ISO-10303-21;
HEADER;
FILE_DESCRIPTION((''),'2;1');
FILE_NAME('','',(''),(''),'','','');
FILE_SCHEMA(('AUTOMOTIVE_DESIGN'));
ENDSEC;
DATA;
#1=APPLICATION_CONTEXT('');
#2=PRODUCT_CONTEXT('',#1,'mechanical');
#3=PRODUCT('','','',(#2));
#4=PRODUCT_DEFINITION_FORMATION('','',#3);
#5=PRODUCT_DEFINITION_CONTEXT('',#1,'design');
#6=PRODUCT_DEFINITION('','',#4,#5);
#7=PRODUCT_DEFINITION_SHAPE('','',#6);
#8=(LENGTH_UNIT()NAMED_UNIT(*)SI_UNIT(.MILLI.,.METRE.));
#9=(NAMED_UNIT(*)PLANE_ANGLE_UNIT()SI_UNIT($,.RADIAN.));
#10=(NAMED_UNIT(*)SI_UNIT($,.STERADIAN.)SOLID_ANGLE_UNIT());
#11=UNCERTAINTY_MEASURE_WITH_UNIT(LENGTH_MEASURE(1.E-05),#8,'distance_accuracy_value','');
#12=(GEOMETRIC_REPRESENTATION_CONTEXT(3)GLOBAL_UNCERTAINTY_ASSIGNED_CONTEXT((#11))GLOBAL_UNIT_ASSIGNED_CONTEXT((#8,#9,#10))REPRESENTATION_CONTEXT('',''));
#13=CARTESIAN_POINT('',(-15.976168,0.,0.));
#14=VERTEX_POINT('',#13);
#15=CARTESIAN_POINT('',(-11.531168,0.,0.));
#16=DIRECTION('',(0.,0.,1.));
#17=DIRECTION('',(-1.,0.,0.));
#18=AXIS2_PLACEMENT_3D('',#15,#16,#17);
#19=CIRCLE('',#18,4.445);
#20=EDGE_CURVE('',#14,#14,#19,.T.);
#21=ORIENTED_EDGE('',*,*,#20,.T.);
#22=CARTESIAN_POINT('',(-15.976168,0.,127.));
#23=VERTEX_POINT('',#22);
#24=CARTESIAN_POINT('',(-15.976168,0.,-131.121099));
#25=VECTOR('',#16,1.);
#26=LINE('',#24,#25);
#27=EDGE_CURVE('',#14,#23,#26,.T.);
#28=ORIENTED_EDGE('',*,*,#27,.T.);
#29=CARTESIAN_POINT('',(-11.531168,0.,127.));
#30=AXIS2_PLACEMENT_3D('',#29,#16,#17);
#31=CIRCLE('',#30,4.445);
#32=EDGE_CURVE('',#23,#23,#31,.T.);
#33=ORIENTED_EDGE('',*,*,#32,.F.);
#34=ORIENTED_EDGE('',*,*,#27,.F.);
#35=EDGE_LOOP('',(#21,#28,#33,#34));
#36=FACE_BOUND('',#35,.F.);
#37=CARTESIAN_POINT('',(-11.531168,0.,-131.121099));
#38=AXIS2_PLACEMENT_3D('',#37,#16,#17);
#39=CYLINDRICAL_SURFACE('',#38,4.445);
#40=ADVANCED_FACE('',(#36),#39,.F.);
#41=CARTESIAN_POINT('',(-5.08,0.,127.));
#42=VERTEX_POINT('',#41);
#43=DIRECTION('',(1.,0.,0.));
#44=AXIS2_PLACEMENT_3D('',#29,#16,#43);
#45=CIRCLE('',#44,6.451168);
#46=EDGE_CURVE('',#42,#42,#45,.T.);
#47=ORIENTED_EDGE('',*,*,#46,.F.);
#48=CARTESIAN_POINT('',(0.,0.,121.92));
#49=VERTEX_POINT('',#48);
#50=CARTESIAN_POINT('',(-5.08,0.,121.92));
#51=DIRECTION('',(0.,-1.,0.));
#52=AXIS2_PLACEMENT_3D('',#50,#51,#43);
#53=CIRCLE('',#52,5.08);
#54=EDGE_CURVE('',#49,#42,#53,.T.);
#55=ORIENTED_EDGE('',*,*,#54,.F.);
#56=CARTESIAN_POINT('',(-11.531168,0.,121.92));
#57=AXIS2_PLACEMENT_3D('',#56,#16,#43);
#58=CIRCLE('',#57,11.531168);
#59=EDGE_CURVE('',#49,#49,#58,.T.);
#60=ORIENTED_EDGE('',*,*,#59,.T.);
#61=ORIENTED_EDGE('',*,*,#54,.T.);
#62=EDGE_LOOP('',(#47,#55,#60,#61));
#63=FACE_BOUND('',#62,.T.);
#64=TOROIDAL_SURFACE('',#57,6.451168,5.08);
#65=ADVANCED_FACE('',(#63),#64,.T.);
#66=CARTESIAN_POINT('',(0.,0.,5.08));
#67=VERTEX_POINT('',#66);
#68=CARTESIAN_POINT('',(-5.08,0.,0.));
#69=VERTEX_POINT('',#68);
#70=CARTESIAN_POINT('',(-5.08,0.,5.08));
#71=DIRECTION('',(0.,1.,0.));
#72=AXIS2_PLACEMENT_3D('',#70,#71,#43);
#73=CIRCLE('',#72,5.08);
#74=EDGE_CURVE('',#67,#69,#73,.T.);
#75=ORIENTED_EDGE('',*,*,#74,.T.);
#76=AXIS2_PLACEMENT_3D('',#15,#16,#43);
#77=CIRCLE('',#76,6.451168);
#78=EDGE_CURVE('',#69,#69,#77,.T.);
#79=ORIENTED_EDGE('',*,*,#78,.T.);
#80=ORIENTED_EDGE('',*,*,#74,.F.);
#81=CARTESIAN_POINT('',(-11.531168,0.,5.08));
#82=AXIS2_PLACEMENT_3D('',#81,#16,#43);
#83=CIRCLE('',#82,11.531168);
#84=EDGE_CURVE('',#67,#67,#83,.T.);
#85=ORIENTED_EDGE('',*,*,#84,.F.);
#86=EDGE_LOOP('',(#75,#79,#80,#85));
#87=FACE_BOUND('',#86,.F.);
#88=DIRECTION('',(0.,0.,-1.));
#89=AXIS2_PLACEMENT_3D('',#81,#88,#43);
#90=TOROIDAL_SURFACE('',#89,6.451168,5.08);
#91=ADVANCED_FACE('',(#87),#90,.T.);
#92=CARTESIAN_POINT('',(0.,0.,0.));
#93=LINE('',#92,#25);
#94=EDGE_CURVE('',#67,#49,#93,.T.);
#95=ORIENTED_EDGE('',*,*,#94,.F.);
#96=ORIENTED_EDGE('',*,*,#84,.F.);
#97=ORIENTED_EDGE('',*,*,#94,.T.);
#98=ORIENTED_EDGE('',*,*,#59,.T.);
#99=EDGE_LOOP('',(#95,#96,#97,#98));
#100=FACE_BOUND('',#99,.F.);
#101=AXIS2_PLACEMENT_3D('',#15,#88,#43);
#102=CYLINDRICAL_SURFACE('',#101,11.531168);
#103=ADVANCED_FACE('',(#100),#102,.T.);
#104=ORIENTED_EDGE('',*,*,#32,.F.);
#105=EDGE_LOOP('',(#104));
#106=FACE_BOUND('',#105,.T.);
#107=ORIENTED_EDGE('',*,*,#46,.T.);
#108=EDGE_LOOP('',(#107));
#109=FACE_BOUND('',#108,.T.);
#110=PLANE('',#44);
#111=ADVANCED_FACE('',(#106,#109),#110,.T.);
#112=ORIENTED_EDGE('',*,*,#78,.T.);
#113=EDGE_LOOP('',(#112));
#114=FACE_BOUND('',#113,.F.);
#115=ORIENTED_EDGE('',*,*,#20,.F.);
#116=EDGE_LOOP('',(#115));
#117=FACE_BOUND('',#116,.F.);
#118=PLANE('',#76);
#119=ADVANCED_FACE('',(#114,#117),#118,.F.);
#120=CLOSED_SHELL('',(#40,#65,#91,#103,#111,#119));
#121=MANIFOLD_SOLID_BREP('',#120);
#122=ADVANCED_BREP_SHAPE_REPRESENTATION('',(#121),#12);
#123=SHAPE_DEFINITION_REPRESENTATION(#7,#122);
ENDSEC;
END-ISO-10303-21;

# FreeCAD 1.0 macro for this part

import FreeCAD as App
import Part
import Sketcher
Q = App.Units.Quantity


def edges_at(feature, points):
    """Names of the edges that pass closest to the given points."""
    edges = feature.Shape.Edges
    near = lambda p: min(range(len(edges)), key=lambda i: edges[i].distToShape(Part.Vertex(*p))[0])
    return sorted({f"Edge{near(p) + 1}" for p in points})

doc = App.newDocument("Part")
body = doc.addObject("PartDesign::Body", "Body")

sketch1 = body.newObject("Sketcher::SketchObject", "Sketch")
sketch1.AttachmentSupport = (doc.getObject("XY_Plane"), [""])
sketch1.MapMode = "FlatFace"
sketch1.addGeometry(Part.Circle(App.Vector(-12, 0, 0), App.Vector(0, 0, 1), 12), False)
sketch1.addConstraint(Sketcher.Constraint("PointOnObject", 0, 3, -1))
sketch1.addConstraint(Sketcher.Constraint("Diameter", 0, 23.062336))
sketch1.addConstraint(Sketcher.Constraint("DistanceX", 0, 3, -1, 1, 11.531168))
pad1 = body.newObject("PartDesign::Pad", "Pad")
pad1.Profile = sketch1
pad1.Length = Q("5 in")

sketch2 = body.newObject("Sketcher::SketchObject", "Sketch001")
sketch2.AttachmentSupport = (doc.getObject("XY_Plane"), [""])
sketch2.MapMode = "FlatFace"
sketch2.addGeometry(Part.Circle(App.Vector(-11.5, 0, 0), App.Vector(0, 0, 1), 4.4), False)
sketch2.addConstraint(Sketcher.Constraint("PointOnObject", 0, 3, -1))
sketch2.addConstraint(Sketcher.Constraint("Diameter", 0, Q("0.35 in")))
sketch2.addConstraint(Sketcher.Constraint("DistanceX", 0, 3, -1, 1, 11.531168))
doc.recompute()
hole = body.newObject("PartDesign::Hole", "Hole")
hole.Profile = sketch2
hole.ThreadType = "None"
hole.Diameter = Q("0.35 in")
hole.DepthType = "ThroughAll"
hole.Reversed = True
doc.recompute()

fillet = body.newObject("PartDesign::Fillet", "Fillet")
fillet.Base = (hole, edges_at(hole, [(-23.062, 0, 127)]))
fillet.Radius = Q("0.2 in")
doc.recompute()

fillet2 = body.newObject("PartDesign::Fillet", "Fillet001")
fillet2.Base = (fillet, edges_at(fillet, [(-23.062, 0, 0)]))
fillet2.Radius = Q("0.2 in")

doc.recompute()
